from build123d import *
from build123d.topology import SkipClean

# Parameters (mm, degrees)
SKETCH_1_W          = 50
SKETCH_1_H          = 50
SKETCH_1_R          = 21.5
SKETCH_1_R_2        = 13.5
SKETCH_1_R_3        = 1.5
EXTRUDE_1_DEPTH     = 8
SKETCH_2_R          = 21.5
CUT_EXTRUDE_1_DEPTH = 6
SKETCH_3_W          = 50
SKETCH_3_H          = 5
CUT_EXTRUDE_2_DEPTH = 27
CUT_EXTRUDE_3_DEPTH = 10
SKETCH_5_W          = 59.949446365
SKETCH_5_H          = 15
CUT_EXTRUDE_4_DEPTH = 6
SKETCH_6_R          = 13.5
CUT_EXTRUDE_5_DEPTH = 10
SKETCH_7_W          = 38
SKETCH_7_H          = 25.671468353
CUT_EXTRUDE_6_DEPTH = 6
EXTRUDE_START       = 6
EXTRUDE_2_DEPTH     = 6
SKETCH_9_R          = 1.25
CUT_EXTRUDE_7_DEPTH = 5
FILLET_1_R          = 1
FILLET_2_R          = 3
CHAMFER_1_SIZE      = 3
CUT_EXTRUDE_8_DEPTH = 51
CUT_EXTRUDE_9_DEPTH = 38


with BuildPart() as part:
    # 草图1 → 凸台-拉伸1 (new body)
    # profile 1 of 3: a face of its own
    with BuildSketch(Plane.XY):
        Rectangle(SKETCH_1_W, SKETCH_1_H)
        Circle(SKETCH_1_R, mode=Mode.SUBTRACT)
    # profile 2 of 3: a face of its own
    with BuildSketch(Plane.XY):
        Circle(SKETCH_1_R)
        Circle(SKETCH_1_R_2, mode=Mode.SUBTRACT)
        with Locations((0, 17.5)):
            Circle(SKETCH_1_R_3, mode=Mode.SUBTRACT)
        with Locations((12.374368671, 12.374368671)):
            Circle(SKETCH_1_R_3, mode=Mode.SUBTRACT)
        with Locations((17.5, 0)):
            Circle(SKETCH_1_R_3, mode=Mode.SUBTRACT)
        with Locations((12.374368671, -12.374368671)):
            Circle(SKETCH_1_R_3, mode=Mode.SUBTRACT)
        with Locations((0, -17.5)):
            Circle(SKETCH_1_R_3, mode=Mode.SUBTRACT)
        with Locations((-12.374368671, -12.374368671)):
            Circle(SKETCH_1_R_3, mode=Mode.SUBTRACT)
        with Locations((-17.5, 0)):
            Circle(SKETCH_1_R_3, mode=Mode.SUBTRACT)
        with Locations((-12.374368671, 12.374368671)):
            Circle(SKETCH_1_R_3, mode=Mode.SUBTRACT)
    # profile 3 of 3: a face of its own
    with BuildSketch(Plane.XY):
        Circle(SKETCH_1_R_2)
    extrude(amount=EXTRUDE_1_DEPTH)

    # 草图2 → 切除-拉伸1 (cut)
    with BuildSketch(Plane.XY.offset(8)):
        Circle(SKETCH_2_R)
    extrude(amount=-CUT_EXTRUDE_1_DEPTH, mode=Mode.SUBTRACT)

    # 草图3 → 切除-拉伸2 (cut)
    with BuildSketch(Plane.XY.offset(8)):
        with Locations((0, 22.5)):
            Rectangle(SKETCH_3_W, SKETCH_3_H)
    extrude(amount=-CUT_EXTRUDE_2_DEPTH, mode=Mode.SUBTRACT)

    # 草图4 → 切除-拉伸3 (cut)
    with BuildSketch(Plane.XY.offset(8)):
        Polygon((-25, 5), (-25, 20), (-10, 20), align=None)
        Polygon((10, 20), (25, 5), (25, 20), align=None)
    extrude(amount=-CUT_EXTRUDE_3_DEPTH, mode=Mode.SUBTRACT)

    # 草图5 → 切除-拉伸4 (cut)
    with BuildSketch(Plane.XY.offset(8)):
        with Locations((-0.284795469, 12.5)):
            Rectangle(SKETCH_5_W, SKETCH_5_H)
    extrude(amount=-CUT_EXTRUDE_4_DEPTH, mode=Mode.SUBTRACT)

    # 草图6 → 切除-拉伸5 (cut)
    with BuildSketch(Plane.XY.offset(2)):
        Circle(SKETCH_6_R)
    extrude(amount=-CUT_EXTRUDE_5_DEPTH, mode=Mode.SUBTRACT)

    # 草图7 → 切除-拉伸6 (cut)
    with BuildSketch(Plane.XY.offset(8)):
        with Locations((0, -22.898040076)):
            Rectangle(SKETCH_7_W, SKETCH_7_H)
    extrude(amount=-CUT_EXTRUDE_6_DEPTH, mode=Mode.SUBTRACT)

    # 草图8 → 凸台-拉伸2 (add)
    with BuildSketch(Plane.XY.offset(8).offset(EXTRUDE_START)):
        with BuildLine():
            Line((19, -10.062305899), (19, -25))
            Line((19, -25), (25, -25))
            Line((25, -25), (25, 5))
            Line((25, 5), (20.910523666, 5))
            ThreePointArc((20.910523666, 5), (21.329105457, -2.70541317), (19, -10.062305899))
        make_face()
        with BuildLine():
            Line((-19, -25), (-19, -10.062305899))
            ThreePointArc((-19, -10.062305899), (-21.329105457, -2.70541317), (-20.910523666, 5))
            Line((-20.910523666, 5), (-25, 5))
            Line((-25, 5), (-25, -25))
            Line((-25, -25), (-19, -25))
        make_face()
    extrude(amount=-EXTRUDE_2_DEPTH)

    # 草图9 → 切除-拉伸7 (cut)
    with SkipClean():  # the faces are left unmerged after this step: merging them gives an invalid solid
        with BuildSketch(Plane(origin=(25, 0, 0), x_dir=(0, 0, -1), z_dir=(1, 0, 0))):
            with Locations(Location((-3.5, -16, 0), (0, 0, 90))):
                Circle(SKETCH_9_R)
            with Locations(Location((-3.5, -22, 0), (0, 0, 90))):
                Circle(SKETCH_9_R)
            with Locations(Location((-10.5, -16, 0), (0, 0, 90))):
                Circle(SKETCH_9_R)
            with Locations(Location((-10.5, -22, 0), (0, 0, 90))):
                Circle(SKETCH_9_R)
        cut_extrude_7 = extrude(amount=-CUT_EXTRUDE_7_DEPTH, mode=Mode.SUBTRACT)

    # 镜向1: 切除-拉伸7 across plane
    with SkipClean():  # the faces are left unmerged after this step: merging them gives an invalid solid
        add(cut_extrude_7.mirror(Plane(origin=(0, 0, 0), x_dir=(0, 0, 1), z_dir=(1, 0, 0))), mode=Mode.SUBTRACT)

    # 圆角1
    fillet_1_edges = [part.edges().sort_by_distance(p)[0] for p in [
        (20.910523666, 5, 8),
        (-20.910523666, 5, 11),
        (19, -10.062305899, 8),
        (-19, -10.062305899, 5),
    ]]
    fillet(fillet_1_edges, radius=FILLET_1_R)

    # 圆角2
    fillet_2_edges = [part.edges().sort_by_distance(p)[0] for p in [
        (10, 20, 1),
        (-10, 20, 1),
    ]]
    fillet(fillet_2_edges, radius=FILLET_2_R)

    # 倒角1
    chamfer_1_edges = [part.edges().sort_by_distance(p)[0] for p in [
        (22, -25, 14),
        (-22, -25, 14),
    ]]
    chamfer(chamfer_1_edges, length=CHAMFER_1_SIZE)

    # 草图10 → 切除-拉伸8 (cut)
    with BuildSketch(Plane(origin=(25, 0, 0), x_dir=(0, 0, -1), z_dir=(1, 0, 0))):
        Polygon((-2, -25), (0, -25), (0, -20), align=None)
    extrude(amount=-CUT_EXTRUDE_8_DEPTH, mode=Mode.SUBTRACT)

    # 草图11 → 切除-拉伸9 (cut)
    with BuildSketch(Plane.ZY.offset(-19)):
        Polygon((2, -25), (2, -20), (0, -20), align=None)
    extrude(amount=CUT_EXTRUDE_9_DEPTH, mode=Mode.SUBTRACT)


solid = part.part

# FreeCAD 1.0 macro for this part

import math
import FreeCAD as App
import Part
import Sketcher

V = App.Vector


def edges_at(feature, points):
    """Names of the edges that pass closest to the given points."""
    edges = feature.Shape.Edges
    near = lambda p: min(range(len(edges)), key=lambda i: edges[i].distToShape(Part.Vertex(*p))[0])
    return sorted({f"Edge{near(p) + 1}" for p in points})

doc = App.newDocument("Part")
body = doc.addObject("PartDesign::Body", "Body")

# Sketch on XY plane
sketch1 = doc.addObject("Sketcher::SketchObject", "Sketch")
body.addObject(sketch1)
sketch1.AttachmentSupport = (doc.XY_Plane, [""])
sketch1.MapMode = "FlatFace"
sketch1.addGeometry([
    Part.LineSegment(V(-25, 25, 0), V(-25, -25, 0)),  # 0
    Part.LineSegment(V(-25, -25, 0), V(25, -25, 0)),  # 1
    Part.LineSegment(V(25, -25, 0), V(25, 25, 0)),  # 2
    Part.LineSegment(V(25, 25, 0), V(-25, 25, 0)),  # 3
    Part.Circle(V(12.374369, 12.374369, 0), V(0, 0, 1), 1.5),  # 4
    Part.Circle(V(-12.374369, -12.374369, 0), V(0, 0, 1), 1.5),  # 5
    Part.Circle(V(0, -17.5, 0), V(0, 0, 1), 1.5),  # 6
    Part.Circle(V(12.374369, -12.374369, 0), V(0, 0, 1), 1.5),  # 7
    Part.Circle(V(-17.5, 0, 0), V(0, 0, 1), 1.5),  # 8
    Part.Circle(V(-12.374369, 12.374369, 0), V(0, 0, 1), 1.5),  # 9
    Part.Circle(V(17.5, 0, 0), V(0, 0, 1), 1.5),  # 10
    Part.Circle(V(0, 17.5, 0), V(0, 0, 1), 1.5),  # 11
], False)
sketch1.addConstraint([
    Sketcher.Constraint("Coincident", 0, 2, 1, 1),
    Sketcher.Constraint("Coincident", 1, 2, 2, 1),
    Sketcher.Constraint("Coincident", 2, 2, 3, 1),
    Sketcher.Constraint("Coincident", 3, 2, 0, 1),
    Sketcher.Constraint("Vertical", 0),
    Sketcher.Constraint("Horizontal", 1),
    Sketcher.Constraint("Vertical", 2),
    Sketcher.Constraint("Horizontal", 3),
    Sketcher.Constraint("Equal", 4, 5),
    Sketcher.Constraint("Equal", 5, 6),
    Sketcher.Constraint("Equal", 6, 7),
    Sketcher.Constraint("Equal", 7, 8),
    Sketcher.Constraint("Equal", 8, 9),
    Sketcher.Constraint("Equal", 9, 10),
    Sketcher.Constraint("Equal", 10, 11),
    Sketcher.Constraint("Symmetric", 4, 3, 5, 3, -1, 1),
    Sketcher.Constraint("Symmetric", 7, 3, 9, 3, -1, 1),
    Sketcher.Constraint("Symmetric", 8, 3, 10, 3, -1, 1),
    Sketcher.Constraint("Symmetric", 6, 3, 11, 3, -1, 1),
    Sketcher.Constraint("Symmetric", 0, 2, 2, 2, -1, 1),
    Sketcher.Constraint("Symmetric", 5, 3, 7, 3, -2),
    Sketcher.Constraint("PointOnObject", 6, 3, -2),
    Sketcher.Constraint("PointOnObject", 8, 3, -1),
    Sketcher.Constraint("Equal", 3, 0),
    Sketcher.Constraint("Diameter", 4, 3.0),
    Sketcher.Constraint("DistanceX", 1, 1, 1, 2, 50.0),
    Sketcher.Constraint("DistanceY", 6, 3, -1, 1, 17.5),
    Sketcher.Constraint("DistanceX", 8, 3, -1, 1, 17.5),
    Sketcher.Constraint("DistanceX", -1, 1, 4, 3, 12.374369),
    Sketcher.Constraint("DistanceY", -1, 1, 4, 3, 12.374369),
])
pad1 = doc.addObject("PartDesign::Pad", "Pad")
body.addObject(pad1)
pad1.Profile = sketch1
pad1.Length = 8

# Sketch on XY plane
sketch2 = doc.addObject("Sketcher::SketchObject", "Sketch001")
body.addObject(sketch2)
sketch2.AttachmentSupport = (doc.XY_Plane, [""])
sketch2.MapMode = "FlatFace"
sketch2.AttachmentOffset = App.Placement(V(0, 0, 8), App.Rotation())
sketch2.addGeometry(Part.Circle(V(0, 0, 0), V(0, 0, 1), 21.5), False)
sketch2.addConstraint([
    Sketcher.Constraint("Coincident", 0, 3, -1, 1),
    Sketcher.Constraint("Diameter", 0, 43.0),
])
pocket1 = doc.addObject("PartDesign::Pocket", "Pocket")
body.addObject(pocket1)
pocket1.Profile = sketch2
pocket1.Length = 6

# Sketch on XY plane
sketch3 = doc.addObject("Sketcher::SketchObject", "Sketch002")
body.addObject(sketch3)
sketch3.AttachmentSupport = (doc.XY_Plane, [""])
sketch3.MapMode = "FlatFace"
sketch3.AttachmentOffset = App.Placement(V(0, 0, 8), App.Rotation())
sketch3.addGeometry([
    Part.LineSegment(V(-25, 25, 0), V(-25, 20, 0)),
    Part.LineSegment(V(-25, 20, 0), V(25, 20, 0)),
    Part.LineSegment(V(25, 20, 0), V(25, 25, 0)),
    Part.LineSegment(V(25, 25, 0), V(-25, 25, 0)),
], False)
sketch3.addConstraint([
    Sketcher.Constraint("Coincident", 0, 2, 1, 1),
    Sketcher.Constraint("Coincident", 1, 2, 2, 1),
    Sketcher.Constraint("Coincident", 2, 2, 3, 1),
    Sketcher.Constraint("Coincident", 3, 2, 0, 1),
    Sketcher.Constraint("Vertical", 0),
    Sketcher.Constraint("Horizontal", 1),
    Sketcher.Constraint("Vertical", 2),
    Sketcher.Constraint("Horizontal", 3),
    Sketcher.Constraint("DistanceX", 1, 1, 1, 2, 50.0),
    Sketcher.Constraint("DistanceY", 0, 2, 0, 1, 5.0),
    Sketcher.Constraint("DistanceX", 0, 2, -1, 1, 25.0),
    Sketcher.Constraint("DistanceY", -1, 1, 0, 2, 20.0),
])
pocket2 = doc.addObject("PartDesign::Pocket", "Pocket001")
body.addObject(pocket2)
pocket2.Profile = sketch3
pocket2.Length = 27

# Sketch on XY plane
sketch4 = doc.addObject("Sketcher::SketchObject", "Sketch003")
body.addObject(sketch4)
sketch4.AttachmentSupport = (doc.XY_Plane, [""])
sketch4.MapMode = "FlatFace"
sketch4.AttachmentOffset = App.Placement(V(0, 0, 8), App.Rotation())
sketch4.addGeometry([
    Part.LineSegment(V(-25, 20, 0), V(-25, 5, 0)),  # 0
    Part.LineSegment(V(-25, 5, 0), V(-10, 20, 0)),  # 1
    Part.LineSegment(V(-10, 20, 0), V(-25, 20, 0)),  # 2
    Part.LineSegment(V(10, 20, 0), V(25, 5, 0)),  # 3
    Part.LineSegment(V(25, 5, 0), V(25, 20, 0)),  # 4
    Part.LineSegment(V(25, 20, 0), V(10, 20, 0)),  # 5
], False)
sketch4.addConstraint([
    Sketcher.Constraint("Coincident", 0, 2, 1, 1),
    Sketcher.Constraint("Coincident", 1, 2, 2, 1),
    Sketcher.Constraint("Coincident", 2, 2, 0, 1),
    Sketcher.Constraint("Coincident", 3, 2, 4, 1),
    Sketcher.Constraint("Coincident", 4, 2, 5, 1),
    Sketcher.Constraint("Coincident", 5, 2, 3, 1),
    Sketcher.Constraint("Vertical", 0),
    Sketcher.Constraint("Horizontal", 2),
    Sketcher.Constraint("Vertical", 4),
    Sketcher.Constraint("Horizontal", 5),
    Sketcher.Constraint("Symmetric", 0, 2, 3, 2, -2),
    Sketcher.Constraint("Symmetric", 1, 2, 5, 2, -2),
    Sketcher.Constraint("Perpendicular", 1, 3),
    Sketcher.Constraint("DistanceX", 2, 2, 2, 1, 15.0),
    Sketcher.Constraint("DistanceX", 0, 2, -1, 1, 25.0),
    Sketcher.Constraint("DistanceY", -1, 1, 0, 2, 5.0),
])
pocket3 = doc.addObject("PartDesign::Pocket", "Pocket002")
body.addObject(pocket3)
pocket3.Profile = sketch4
pocket3.Length = 10

# Sketch on XY plane
sketch5 = doc.addObject("Sketcher::SketchObject", "Sketch004")
body.addObject(sketch5)
sketch5.AttachmentSupport = (doc.XY_Plane, [""])
sketch5.MapMode = "FlatFace"
sketch5.AttachmentOffset = App.Placement(V(0, 0, 8), App.Rotation())
sketch5.addGeometry([
    Part.LineSegment(V(-30.259519, 20, 0), V(-30.259519, 5, 0)),
    Part.LineSegment(V(-30.259519, 5, 0), V(29.689928, 5, 0)),
    Part.LineSegment(V(29.689928, 5, 0), V(29.689928, 20, 0)),
    Part.LineSegment(V(29.689928, 20, 0), V(-30.259519, 20, 0)),
], False)
sketch5.addConstraint([
    Sketcher.Constraint("Coincident", 0, 2, 1, 1),
    Sketcher.Constraint("Coincident", 1, 2, 2, 1),
    Sketcher.Constraint("Coincident", 2, 2, 3, 1),
    Sketcher.Constraint("Coincident", 3, 2, 0, 1),
    Sketcher.Constraint("Vertical", 0),
    Sketcher.Constraint("Horizontal", 1),
    Sketcher.Constraint("Vertical", 2),
    Sketcher.Constraint("Horizontal", 3),
    Sketcher.Constraint("DistanceY", 0, 2, 0, 1, 15.0),
    Sketcher.Constraint("DistanceY", -1, 1, 0, 2, 5.0),
    Sketcher.Constraint("DistanceX", 1, 1, 1, 2, 59.949446),
    Sketcher.Constraint("DistanceX", 0, 2, -1, 1, 30.259519),
])
pocket4 = doc.addObject("PartDesign::Pocket", "Pocket003")
body.addObject(pocket4)
pocket4.Profile = sketch5
pocket4.Length = 6

# Sketch on XY plane
sketch6 = doc.addObject("Sketcher::SketchObject", "Sketch005")
body.addObject(sketch6)
sketch6.AttachmentSupport = (doc.XY_Plane, [""])
sketch6.MapMode = "FlatFace"
sketch6.AttachmentOffset = App.Placement(V(0, 0, 2), App.Rotation())
sketch6.addGeometry(Part.Circle(V(0, 0, 0), V(0, 0, 1), 13.5), False)
sketch6.addConstraint([
    Sketcher.Constraint("Coincident", 0, 3, -1, 1),
    Sketcher.Constraint("Diameter", 0, 27.0),
])
pocket5 = doc.addObject("PartDesign::Pocket", "Pocket004")
body.addObject(pocket5)
pocket5.Profile = sketch6
pocket5.Length = 10

# Sketch on XY plane
sketch7 = doc.addObject("Sketcher::SketchObject", "Sketch006")
body.addObject(sketch7)
sketch7.AttachmentSupport = (doc.XY_Plane, [""])
sketch7.MapMode = "FlatFace"
sketch7.AttachmentOffset = App.Placement(V(0, 0, 8), App.Rotation())
sketch7.addGeometry([
    Part.LineSegment(V(-19, -10.062306, 0), V(-19, -35.733774, 0)),
    Part.LineSegment(V(-19, -35.733774, 0), V(19, -35.733774, 0)),
    Part.LineSegment(V(19, -35.733774, 0), V(19, -10.062306, 0)),
    Part.LineSegment(V(19, -10.062306, 0), V(-19, -10.062306, 0)),
], False)
sketch7.addConstraint([
    Sketcher.Constraint("Coincident", 0, 2, 1, 1),
    Sketcher.Constraint("Coincident", 1, 2, 2, 1),
    Sketcher.Constraint("Coincident", 2, 2, 3, 1),
    Sketcher.Constraint("Coincident", 3, 2, 0, 1),
    Sketcher.Constraint("Vertical", 0),
    Sketcher.Constraint("Horizontal", 1),
    Sketcher.Constraint("Vertical", 2),
    Sketcher.Constraint("Horizontal", 3),
    Sketcher.Constraint("DistanceX", 1, 1, 1, 2, 38.0),
    Sketcher.Constraint("DistanceX", 0, 2, -1, 1, 19.0),
    Sketcher.Constraint("DistanceY", 0, 2, 0, 1, 25.671468),
    Sketcher.Constraint("DistanceY", 0, 2, -1, 1, 35.733774),
])
pocket6 = doc.addObject("PartDesign::Pocket", "Pocket005")
body.addObject(pocket6)
pocket6.Profile = sketch7
pocket6.Length = 6

# Sketch on XY plane
sketch8 = doc.addObject("Sketcher::SketchObject", "Sketch007")
body.addObject(sketch8)
sketch8.AttachmentSupport = (doc.XY_Plane, [""])
sketch8.MapMode = "FlatFace"
sketch8.AttachmentOffset = App.Placement(V(0, 0, 14), App.Rotation())
sketch8.addGeometry([
    Part.LineSegment(V(19, -10.062306, 0), V(19, -25, 0)),  # 0
    Part.LineSegment(V(19, -25, 0), V(25, -25, 0)),  # 1
    Part.LineSegment(V(25, -25, 0), V(25, 5, 0)),  # 2
    Part.LineSegment(V(25, 5, 0), V(20.910524, 5, 0)),  # 3
    Part.ArcOfCircle(Part.Circle(V(0, 0, 0), V(0, 0, 1), 21.5), math.radians(-27.905473), math.radians(13.447727)),  # 4
    Part.LineSegment(V(-19, -25, 0), V(-19, -10.062306, 0)),  # 5
    Part.ArcOfCircle(Part.Circle(V(0, 0, 0), V(0, 0, 1), 21.5), math.radians(166.552273), math.radians(207.905473)),  # 6
    Part.LineSegment(V(-20.910524, 5, 0), V(-25, 5, 0)),  # 7
    Part.LineSegment(V(-25, 5, 0), V(-25, -25, 0)),  # 8
    Part.LineSegment(V(-25, -25, 0), V(-19, -25, 0)),  # 9
], False)
sketch8.addConstraint([
    Sketcher.Constraint("Coincident", 0, 2, 1, 1),
    Sketcher.Constraint("Coincident", 1, 2, 2, 1),
    Sketcher.Constraint("Coincident", 2, 2, 3, 1),
    Sketcher.Constraint("Coincident", 3, 2, 4, 2),
    Sketcher.Constraint("Coincident", 4, 1, 0, 1),
    Sketcher.Constraint("Coincident", 5, 2, 6, 2),
    Sketcher.Constraint("Coincident", 6, 1, 7, 1),
    Sketcher.Constraint("Coincident", 7, 2, 8, 1),
    Sketcher.Constraint("Coincident", 8, 2, 9, 1),
    Sketcher.Constraint("Coincident", 9, 2, 5, 1),
    Sketcher.Constraint("Vertical", 0),
    Sketcher.Constraint("Horizontal", 1),
    Sketcher.Constraint("Vertical", 2),
    Sketcher.Constraint("Horizontal", 3),
    Sketcher.Constraint("Vertical", 5),
    Sketcher.Constraint("Horizontal", 7),
    Sketcher.Constraint("Vertical", 8),
    Sketcher.Constraint("Horizontal", 9),
    Sketcher.Constraint("Coincident", 4, 3, -1, 1),
    Sketcher.Constraint("Coincident", 6, 3, -1, 1),
    Sketcher.Constraint("Equal", 4, 6),
    Sketcher.Constraint("Symmetric", 2, 2, 7, 2, -2),
    Sketcher.Constraint("Symmetric", 0, 2, 9, 2, -2),
    Sketcher.Constraint("Radius", 4, 21.5),
    Sketcher.Constraint("DistanceX", 1, 1, 1, 2, 6.0),
    Sketcher.Constraint("DistanceY", 2, 1, 2, 2, 30.0),
    Sketcher.Constraint("DistanceX", -1, 1, 0, 2, 19.0),
    Sketcher.Constraint("DistanceY", 0, 2, -1, 1, 25.0),
])
pad2 = doc.addObject("PartDesign::Pad", "Pad001")
body.addObject(pad2)
pad2.Profile = sketch8
pad2.Length = 6
pad2.Reversed = True

# Sketch on YZ plane
sketch9 = doc.addObject("Sketcher::SketchObject", "Sketch008")
body.addObject(sketch9)
sketch9.AttachmentSupport = (doc.YZ_Plane, [""])
sketch9.MapMode = "FlatFace"
sketch9.AttachmentOffset = App.Placement(V(0, 0, 25), App.Rotation())
sketch9.addGeometry([
    Part.Circle(V(-16, 3.5, 0), V(0, 0, 1), 1.25),
    Part.Circle(V(-22, 3.5, 0), V(0, 0, 1), 1.25),
    Part.Circle(V(-16, 10.5, 0), V(0, 0, 1), 1.25),
    Part.Circle(V(-22, 10.5, 0), V(0, 0, 1), 1.25),
], False)
sketch9.addConstraint([
    Sketcher.Constraint("Equal", 0, 1),
    Sketcher.Constraint("Equal", 1, 2),
    Sketcher.Constraint("Equal", 2, 3),
    Sketcher.Constraint("Horizontal", 0, 3, 1, 3),
    Sketcher.Constraint("Horizontal", 2, 3, 3, 3),
    Sketcher.Constraint("Vertical", 0, 3, 2, 3),
    Sketcher.Constraint("Vertical", 1, 3, 3, 3),
    Sketcher.Constraint("Diameter", 0, 2.5),
    Sketcher.Constraint("DistanceX", 0, 3, -1, 1, 16.0),
    Sketcher.Constraint("DistanceX", 1, 3, -1, 1, 22.0),
    Sketcher.Constraint("DistanceY", 0, 3, 2, 3, 7.0),
    Sketcher.Constraint("DistanceY", -1, 1, 0, 3, 3.5),
])
pocket7 = doc.addObject("PartDesign::Pocket", "Pocket006")
body.addObject(pocket7)
pocket7.Profile = sketch9
pocket7.Length = 5
doc.recompute()

mirrored = doc.addObject("PartDesign::Mirrored", "Mirrored")
body.addObject(mirrored)
mirrored.Originals = [pocket7]
mirrored.MirrorPlane = (doc.YZ_Plane, [""])
body.Tip = mirrored
doc.recompute()

fillet = doc.addObject("PartDesign::Fillet", "Fillet")
body.addObject(fillet)
fillet.Base = (mirrored, edges_at(mirrored, [
    (20.911, 5, 11),
    (-20.911, 5, 11),
    (19, -10.062, 11),
    (-19, -10.062, 5),
]))
fillet.Radius = 1
doc.recompute()

fillet2 = doc.addObject("PartDesign::Fillet", "Fillet001")
body.addObject(fillet2)
fillet2.Base = (fillet, edges_at(fillet, [(10, 20, 1), (-10, 20, 1)]))
fillet2.Radius = 3
doc.recompute()

chamfer = doc.addObject("PartDesign::Chamfer", "Chamfer")
body.addObject(chamfer)
chamfer.Base = (fillet2, edges_at(fillet2, [(22, -25, 14), (-22, -25, 14)]))
chamfer.Size = 3

# Sketch on YZ plane
sketch10 = doc.addObject("Sketcher::SketchObject", "Sketch009")
body.addObject(sketch10)
sketch10.AttachmentSupport = (doc.YZ_Plane, [""])
sketch10.MapMode = "FlatFace"
sketch10.AttachmentOffset = App.Placement(V(0, 0, 25), App.Rotation())
sketch10.addGeometry([
    Part.LineSegment(V(-25, 2, 0), V(-25, 0, 0)),
    Part.LineSegment(V(-25, 0, 0), V(-20, 0, 0)),
    Part.LineSegment(V(-20, 0, 0), V(-25, 2, 0)),
], False)
sketch10.addConstraint([
    Sketcher.Constraint("Coincident", 0, 2, 1, 1),
    Sketcher.Constraint("Coincident", 1, 2, 2, 1),
    Sketcher.Constraint("Coincident", 2, 2, 0, 1),
    Sketcher.Constraint("Vertical", 0),
    Sketcher.Constraint("Horizontal", 1),
    Sketcher.Constraint("PointOnObject", 0, 2, -1),
    Sketcher.Constraint("DistanceX", 1, 1, 1, 2, 5.0),
    Sketcher.Constraint("DistanceY", 0, 2, 0, 1, 2.0),
    Sketcher.Constraint("DistanceX", 0, 2, -1, 1, 25.0),
])
pocket8 = doc.addObject("PartDesign::Pocket", "Pocket007")
body.addObject(pocket8)
pocket8.Profile = sketch10
pocket8.Length = 51

# Sketch on YZ plane
sketch11 = doc.addObject("Sketcher::SketchObject", "Sketch010")
body.addObject(sketch11)
sketch11.AttachmentSupport = (doc.YZ_Plane, [""])
sketch11.MapMode = "FlatFace"
sketch11.AttachmentOffset = App.Placement(V(0, 0, 19), App.Rotation())
sketch11.addGeometry([
    Part.LineSegment(V(-25, 2, 0), V(-20, 2, 0)),
    Part.LineSegment(V(-20, 2, 0), V(-20, 0, 0)),
    Part.LineSegment(V(-20, 0, 0), V(-25, 2, 0)),
], False)
sketch11.addConstraint([
    Sketcher.Constraint("Coincident", 0, 2, 1, 1),
    Sketcher.Constraint("Coincident", 1, 2, 2, 1),
    Sketcher.Constraint("Coincident", 2, 2, 0, 1),
    Sketcher.Constraint("Horizontal", 0),
    Sketcher.Constraint("Vertical", 1),
    Sketcher.Constraint("PointOnObject", 1, 2, -1),
    Sketcher.Constraint("DistanceX", 0, 1, 0, 2, 5.0),
    Sketcher.Constraint("DistanceY", 1, 2, 1, 1, 2.0),
    Sketcher.Constraint("DistanceX", 0, 2, -1, 1, 20.0),
])
pocket9 = doc.addObject("PartDesign::Pocket", "Pocket008")
body.addObject(pocket9)
pocket9.Profile = sketch11
pocket9.Length = 38

doc.recompute()
